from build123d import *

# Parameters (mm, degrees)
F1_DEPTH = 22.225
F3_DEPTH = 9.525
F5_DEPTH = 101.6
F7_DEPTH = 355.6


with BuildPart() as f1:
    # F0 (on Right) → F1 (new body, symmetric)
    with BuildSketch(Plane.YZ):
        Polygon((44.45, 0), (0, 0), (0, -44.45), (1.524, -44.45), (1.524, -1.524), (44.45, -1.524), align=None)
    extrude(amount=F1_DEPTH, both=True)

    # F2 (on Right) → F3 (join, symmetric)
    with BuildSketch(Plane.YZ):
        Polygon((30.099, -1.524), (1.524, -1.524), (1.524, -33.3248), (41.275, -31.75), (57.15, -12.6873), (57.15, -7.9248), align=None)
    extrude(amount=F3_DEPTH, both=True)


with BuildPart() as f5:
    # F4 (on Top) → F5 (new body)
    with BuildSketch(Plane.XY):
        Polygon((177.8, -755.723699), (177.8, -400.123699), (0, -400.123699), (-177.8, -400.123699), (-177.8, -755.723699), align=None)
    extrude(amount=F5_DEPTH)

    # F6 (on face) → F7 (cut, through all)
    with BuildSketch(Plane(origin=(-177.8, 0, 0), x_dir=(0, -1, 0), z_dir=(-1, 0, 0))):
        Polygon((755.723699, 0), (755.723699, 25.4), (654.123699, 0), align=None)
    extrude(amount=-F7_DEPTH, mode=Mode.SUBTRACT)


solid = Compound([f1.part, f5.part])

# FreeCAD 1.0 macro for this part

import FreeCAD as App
import Part
import Sketcher
from FreeCAD import Vector
Q = App.Units.Quantity


def add_polygon(sketch, points):
    """Adds a closed chain of lines whose ends are joined by coincident constraints."""
    first, n = sketch.GeometryCount, len(points)
    for a, b in zip(points, points[1:] + points[:1]):
        sketch.addGeometry(Part.LineSegment(App.Vector(*a, 0), App.Vector(*b, 0)), False)
    for i in range(n):
        sketch.addConstraint(Sketcher.Constraint("Coincident", first + i, 2, first + (i + 1) % n, 1))

doc = App.newDocument("Part")
body = doc.addObject("PartDesign::Body", "Body")

# Sketch on YZ plane
sketch1 = body.newObject("Sketcher::SketchObject", "Sketch")
sketch1.AttachmentSupport = (doc.getObject("YZ_Plane"), [""])
sketch1.MapMode = "FlatFace"
add_polygon(sketch1, [(44.45, 0), (0, 0), (0, -44.45), (1.524, -44.45), (1.524, -1.524), (44.45, -1.524)])  # lines 0-5
sketch1.addConstraint([
    Sketcher.Constraint("Horizontal", 0),
    Sketcher.Constraint("Vertical", 1),
    Sketcher.Constraint("Horizontal", 2),
    Sketcher.Constraint("Vertical", 3),
    Sketcher.Constraint("Horizontal", 4),
    Sketcher.Constraint("Vertical", 5),
    Sketcher.Constraint("Coincident", 0, 2, -1, 1),
    Sketcher.Constraint("Equal", 0, 1),
    Sketcher.Constraint("Equal", 4, 3),
    Sketcher.Constraint("DistanceX", 0, 2, 0, 1, Q("1.75 in")),
    Sketcher.Constraint("DistanceX", 2, 1, 2, 2, Q("0.06 in")),
])
pad1 = body.newObject("PartDesign::Pad", "Pad")
pad1.Profile = sketch1
pad1.Length = Q("1.75 in")
pad1.Midplane = True

# Sketch on YZ plane
sketch2 = body.newObject("Sketcher::SketchObject", "Sketch001")
sketch2.AttachmentSupport = (doc.getObject("YZ_Plane"), [""])
sketch2.MapMode = "FlatFace"
add_polygon(sketch2, [(30.099, -1.524), (1.524, -1.524), (1.524, -33.3248), (41.275, -31.75), (57.15, -12.6873), (57.15, -7.9248)])  # lines 0-5
sketch2.addConstraint([
    Sketcher.Constraint("Horizontal", 0),
    Sketcher.Constraint("Vertical", 1),
    Sketcher.Constraint("Vertical", 4),
    Sketcher.Constraint("DistanceY", 1, 2, 4, 2, Q("1 in")),
    Sketcher.Constraint("DistanceX", 0, 2, 0, 1, Q("1.125 in")),
    Sketcher.Constraint("DistanceY", 1, 2, 1, 1, Q("1.252 in")),
    Sketcher.Constraint("DistanceY", 4, 1, 4, 2, Q("0.1875 in")),
    Sketcher.Constraint("DistanceX", -1, 1, 0, 2, Q("0.06 in")),
    Sketcher.Constraint("DistanceY", 0, 2, -1, 1, Q("0.06 in")),
    Sketcher.Constraint("DistanceY", 2, 2, -1, 1, Q("1.25 in")),
    Sketcher.Constraint("DistanceX", -1, 1, 3, 2, Q("2.25 in")),
    Sketcher.Constraint("DistanceX", 5, 2, 2, 2, Q("0.44 in")),
])
pad2 = body.newObject("PartDesign::Pad", "Pad001")
pad2.Profile = sketch2
pad2.Length = Q("0.75 in")
pad2.Midplane = True
body2 = doc.addObject("PartDesign::Body", "Body001")

# Sketch on XY plane
sketch3 = body2.newObject("Sketcher::SketchObject", "Sketch002")
sketch3.AttachmentSupport = (doc.getObject("XY_Plane001"), [""])
sketch3.MapMode = "FlatFace"
add_polygon(sketch3, [(177.8, -755.723699), (177.8, -400.123699), (-177.8, -400.123699), (-177.8, -755.723699)])  # lines 0-3
sketch3.addConstraint([
    Sketcher.Constraint("Vertical", 0),
    Sketcher.Constraint("Horizontal", 1),
    Sketcher.Constraint("Vertical", 2),
    Sketcher.Constraint("Horizontal", 3),
    Sketcher.Constraint("Equal", 3, 0),
    Sketcher.Constraint("DistanceX", 1, 2, 1, 1, Q("14 in")),
    Sketcher.Constraint("DistanceX", -1, 1, 0, 2, Q("7 in")),
    Sketcher.Constraint("DistanceY", 0, 2, -1, 1, 400.123699),
])
pad3 = body2.newObject("PartDesign::Pad", "Pad002")
pad3.Profile = sketch3
pad3.Length = Q("4 in")

# Sketch on YZ plane
sketch4 = body2.newObject("Sketcher::SketchObject", "Sketch003")
sketch4.AttachmentSupport = (doc.getObject("YZ_Plane001"), [""])
sketch4.MapMode = "FlatFace"
sketch4.AttachmentOffset = App.Placement(Vector(0, 0, -7 * 25.4), App.Rotation())
add_polygon(sketch4, [(-755.723699, 0), (-755.723699, 25.4), (-654.123699, 0)])  # lines 0-2
sketch4.addConstraint([
    Sketcher.Constraint("Vertical", 0),
    Sketcher.Constraint("Horizontal", 2),
    Sketcher.Constraint("PointOnObject", 1, 2, -1),
    Sketcher.Constraint("DistanceX", 2, 2, 2, 1, Q("4 in")),
    Sketcher.Constraint("DistanceY", 0, 1, 0, 2, Q("1 in")),
    Sketcher.Constraint("DistanceX", 0, 2, -1, 1, 755.723699),
])
pocket1 = body2.newObject("PartDesign::Pocket", "Pocket")
pocket1.Profile = sketch4
pocket1.Type = "ThroughAll"
pocket1.Reversed = True

doc.recompute()
